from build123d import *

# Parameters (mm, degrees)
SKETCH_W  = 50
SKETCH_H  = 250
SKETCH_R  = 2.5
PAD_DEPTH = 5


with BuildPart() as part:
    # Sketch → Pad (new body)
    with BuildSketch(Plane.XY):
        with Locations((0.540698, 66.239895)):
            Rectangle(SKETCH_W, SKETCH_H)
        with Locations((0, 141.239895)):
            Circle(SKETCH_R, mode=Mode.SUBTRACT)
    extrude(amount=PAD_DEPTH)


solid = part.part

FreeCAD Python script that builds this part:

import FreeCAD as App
import Part
import Sketcher

V = App.Vector

doc = App.newDocument("Part")
params = doc.addObject("Spreadsheet::Sheet", "Params")
for row, (alias, value) in enumerate([
    ("sketch1_diameter", "5 mm"),
    ("sketch1_width", "50 mm"),
    ("sketch1_height", "250 mm"),
    ("pad1_length", "5 mm"),
], start=1):
    params.set(f"A{row}", alias)
    params.set(f"B{row}", "=" + value)
    params.setAlias(f"B{row}", alias)

body = doc.addObject("PartDesign::Body", "Body")

# Sketch on XY plane
sketch1 = body.newObject("Sketcher::SketchObject", "Sketch")
sketch1.AttachmentSupport = (doc.getObject("XY_Plane"), [""])
sketch1.MapMode = "FlatFace"
sketch1.addGeometry(Part.LineSegment(V(-24.5, 191.2, 0), V(-24.5, -58.8, 0)), False)
sketch1.addGeometry(Part.LineSegment(V(-24.5, -58.8, 0), V(25.5, -58.8, 0)), False)
sketch1.addGeometry(Part.LineSegment(V(25.5, -58.8, 0), V(25.5, 191.2, 0)), False)
sketch1.addGeometry(Part.LineSegment(V(25.5, 191.2, 0), V(-24.5, 191.2, 0)), False)
sketch1.addGeometry(Part.Circle(V(0, 141.2, 0), V(0, 0, 1), 2.5), False)
sketch1.addConstraint(Sketcher.Constraint("Coincident", 0, 2, 1, 1))
sketch1.addConstraint(Sketcher.Constraint("Coincident", 1, 2, 2, 1))
sketch1.addConstraint(Sketcher.Constraint("Coincident", 2, 2, 3, 1))
sketch1.addConstraint(Sketcher.Constraint("Coincident", 3, 2, 0, 1))
sketch1.addConstraint(Sketcher.Constraint("Vertical", 0))
sketch1.addConstraint(Sketcher.Constraint("Horizontal", 1))
sketch1.addConstraint(Sketcher.Constraint("Vertical", 2))
sketch1.addConstraint(Sketcher.Constraint("Horizontal", 3))
sketch1.addConstraint(Sketcher.Constraint("PointOnObject", 4, 3, -2))
sketch1.addConstraint(Sketcher.Constraint("Diameter", 4, 5.0))
sketch1.addConstraint(Sketcher.Constraint("DistanceX", 1, 1, 1, 2, 50.0))
sketch1.addConstraint(Sketcher.Constraint("DistanceY", 0, 2, 0, 1, 250.0))
sketch1.addConstraint(Sketcher.Constraint("DistanceY", 0, 2, 4, 3, 200.0))
sketch1.addConstraint(Sketcher.Constraint("DistanceY", -1, 1, 4, 3, 141.239895))
sketch1.addConstraint(Sketcher.Constraint("DistanceX", 0, 2, -1, 1, 24.459302))
sketch1.setExpression("Constraints[9]", "Params.sketch1_diameter")
sketch1.setExpression("Constraints[10]", "Params.sketch1_width")
sketch1.setExpression("Constraints[11]", "Params.sketch1_height")
pad1 = body.newObject("PartDesign::Pad", "Pad")
pad1.Profile = sketch1
pad1.setExpression("Length", "Params.pad1_length")

doc.recompute()
